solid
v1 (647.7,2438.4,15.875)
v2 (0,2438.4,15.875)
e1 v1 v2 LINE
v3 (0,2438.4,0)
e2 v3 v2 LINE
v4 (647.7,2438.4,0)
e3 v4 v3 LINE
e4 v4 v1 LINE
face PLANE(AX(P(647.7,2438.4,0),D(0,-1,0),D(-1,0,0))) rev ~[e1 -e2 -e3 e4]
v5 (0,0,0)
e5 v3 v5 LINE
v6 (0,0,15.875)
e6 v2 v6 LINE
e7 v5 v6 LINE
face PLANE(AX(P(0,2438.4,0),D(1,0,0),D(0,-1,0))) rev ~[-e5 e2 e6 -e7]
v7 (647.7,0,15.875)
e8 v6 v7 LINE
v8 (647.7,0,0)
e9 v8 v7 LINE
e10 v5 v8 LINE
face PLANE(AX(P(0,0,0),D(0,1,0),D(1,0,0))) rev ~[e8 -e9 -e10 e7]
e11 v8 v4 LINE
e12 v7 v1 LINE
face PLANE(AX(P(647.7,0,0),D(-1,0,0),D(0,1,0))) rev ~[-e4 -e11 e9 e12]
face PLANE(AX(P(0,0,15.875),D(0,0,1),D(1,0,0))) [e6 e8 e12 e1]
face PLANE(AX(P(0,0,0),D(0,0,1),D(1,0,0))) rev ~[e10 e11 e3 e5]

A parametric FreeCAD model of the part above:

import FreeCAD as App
import Part
import Sketcher
from FreeCAD import Vector
Q = App.Units.Quantity

doc = App.newDocument("Part")
body = doc.addObject("PartDesign::Body", "Body")

sketch1 = body.newObject("Sketcher::SketchObject", "Sketch")
sketch1.AttachmentSupport = (doc.getObject("XY_Plane"), [""])
sketch1.MapMode = "FlatFace"
sketch1.addGeometry(Part.LineSegment(Vector(0, 2438, 0), Vector(0, 0, 0)), False)
sketch1.addGeometry(Part.LineSegment(Vector(0, 0, 0), Vector(648, 0, 0)), False)
sketch1.addGeometry(Part.LineSegment(Vector(648, 0, 0), Vector(648, 2438, 0)), False)
sketch1.addGeometry(Part.LineSegment(Vector(648, 2438, 0), Vector(0, 2438, 0)), False)
sketch1.addConstraint(Sketcher.Constraint("Coincident", 0, 2, 1, 1))
sketch1.addConstraint(Sketcher.Constraint("Coincident", 1, 2, 2, 1))
sketch1.addConstraint(Sketcher.Constraint("Coincident", 2, 2, 3, 1))
sketch1.addConstraint(Sketcher.Constraint("Coincident", 3, 2, 0, 1))
sketch1.addConstraint(Sketcher.Constraint("Vertical", 0))
sketch1.addConstraint(Sketcher.Constraint("Horizontal", 1))
sketch1.addConstraint(Sketcher.Constraint("Vertical", 2))
sketch1.addConstraint(Sketcher.Constraint("Horizontal", 3))
sketch1.addConstraint(Sketcher.Constraint("Coincident", 0, 2, -1, 1))
sketch1.addConstraint(Sketcher.Constraint("DistanceY", 0, 2, 0, 1, Q("96 in")))
sketch1.addConstraint(Sketcher.Constraint("DistanceX", 1, 1, 1, 2, Q("25.5 in")))
pad1 = body.newObject("PartDesign::Pad", "Pad")
pad1.Profile = sketch1
pad1.Length = Q("0.625 in")

doc.recompute()
